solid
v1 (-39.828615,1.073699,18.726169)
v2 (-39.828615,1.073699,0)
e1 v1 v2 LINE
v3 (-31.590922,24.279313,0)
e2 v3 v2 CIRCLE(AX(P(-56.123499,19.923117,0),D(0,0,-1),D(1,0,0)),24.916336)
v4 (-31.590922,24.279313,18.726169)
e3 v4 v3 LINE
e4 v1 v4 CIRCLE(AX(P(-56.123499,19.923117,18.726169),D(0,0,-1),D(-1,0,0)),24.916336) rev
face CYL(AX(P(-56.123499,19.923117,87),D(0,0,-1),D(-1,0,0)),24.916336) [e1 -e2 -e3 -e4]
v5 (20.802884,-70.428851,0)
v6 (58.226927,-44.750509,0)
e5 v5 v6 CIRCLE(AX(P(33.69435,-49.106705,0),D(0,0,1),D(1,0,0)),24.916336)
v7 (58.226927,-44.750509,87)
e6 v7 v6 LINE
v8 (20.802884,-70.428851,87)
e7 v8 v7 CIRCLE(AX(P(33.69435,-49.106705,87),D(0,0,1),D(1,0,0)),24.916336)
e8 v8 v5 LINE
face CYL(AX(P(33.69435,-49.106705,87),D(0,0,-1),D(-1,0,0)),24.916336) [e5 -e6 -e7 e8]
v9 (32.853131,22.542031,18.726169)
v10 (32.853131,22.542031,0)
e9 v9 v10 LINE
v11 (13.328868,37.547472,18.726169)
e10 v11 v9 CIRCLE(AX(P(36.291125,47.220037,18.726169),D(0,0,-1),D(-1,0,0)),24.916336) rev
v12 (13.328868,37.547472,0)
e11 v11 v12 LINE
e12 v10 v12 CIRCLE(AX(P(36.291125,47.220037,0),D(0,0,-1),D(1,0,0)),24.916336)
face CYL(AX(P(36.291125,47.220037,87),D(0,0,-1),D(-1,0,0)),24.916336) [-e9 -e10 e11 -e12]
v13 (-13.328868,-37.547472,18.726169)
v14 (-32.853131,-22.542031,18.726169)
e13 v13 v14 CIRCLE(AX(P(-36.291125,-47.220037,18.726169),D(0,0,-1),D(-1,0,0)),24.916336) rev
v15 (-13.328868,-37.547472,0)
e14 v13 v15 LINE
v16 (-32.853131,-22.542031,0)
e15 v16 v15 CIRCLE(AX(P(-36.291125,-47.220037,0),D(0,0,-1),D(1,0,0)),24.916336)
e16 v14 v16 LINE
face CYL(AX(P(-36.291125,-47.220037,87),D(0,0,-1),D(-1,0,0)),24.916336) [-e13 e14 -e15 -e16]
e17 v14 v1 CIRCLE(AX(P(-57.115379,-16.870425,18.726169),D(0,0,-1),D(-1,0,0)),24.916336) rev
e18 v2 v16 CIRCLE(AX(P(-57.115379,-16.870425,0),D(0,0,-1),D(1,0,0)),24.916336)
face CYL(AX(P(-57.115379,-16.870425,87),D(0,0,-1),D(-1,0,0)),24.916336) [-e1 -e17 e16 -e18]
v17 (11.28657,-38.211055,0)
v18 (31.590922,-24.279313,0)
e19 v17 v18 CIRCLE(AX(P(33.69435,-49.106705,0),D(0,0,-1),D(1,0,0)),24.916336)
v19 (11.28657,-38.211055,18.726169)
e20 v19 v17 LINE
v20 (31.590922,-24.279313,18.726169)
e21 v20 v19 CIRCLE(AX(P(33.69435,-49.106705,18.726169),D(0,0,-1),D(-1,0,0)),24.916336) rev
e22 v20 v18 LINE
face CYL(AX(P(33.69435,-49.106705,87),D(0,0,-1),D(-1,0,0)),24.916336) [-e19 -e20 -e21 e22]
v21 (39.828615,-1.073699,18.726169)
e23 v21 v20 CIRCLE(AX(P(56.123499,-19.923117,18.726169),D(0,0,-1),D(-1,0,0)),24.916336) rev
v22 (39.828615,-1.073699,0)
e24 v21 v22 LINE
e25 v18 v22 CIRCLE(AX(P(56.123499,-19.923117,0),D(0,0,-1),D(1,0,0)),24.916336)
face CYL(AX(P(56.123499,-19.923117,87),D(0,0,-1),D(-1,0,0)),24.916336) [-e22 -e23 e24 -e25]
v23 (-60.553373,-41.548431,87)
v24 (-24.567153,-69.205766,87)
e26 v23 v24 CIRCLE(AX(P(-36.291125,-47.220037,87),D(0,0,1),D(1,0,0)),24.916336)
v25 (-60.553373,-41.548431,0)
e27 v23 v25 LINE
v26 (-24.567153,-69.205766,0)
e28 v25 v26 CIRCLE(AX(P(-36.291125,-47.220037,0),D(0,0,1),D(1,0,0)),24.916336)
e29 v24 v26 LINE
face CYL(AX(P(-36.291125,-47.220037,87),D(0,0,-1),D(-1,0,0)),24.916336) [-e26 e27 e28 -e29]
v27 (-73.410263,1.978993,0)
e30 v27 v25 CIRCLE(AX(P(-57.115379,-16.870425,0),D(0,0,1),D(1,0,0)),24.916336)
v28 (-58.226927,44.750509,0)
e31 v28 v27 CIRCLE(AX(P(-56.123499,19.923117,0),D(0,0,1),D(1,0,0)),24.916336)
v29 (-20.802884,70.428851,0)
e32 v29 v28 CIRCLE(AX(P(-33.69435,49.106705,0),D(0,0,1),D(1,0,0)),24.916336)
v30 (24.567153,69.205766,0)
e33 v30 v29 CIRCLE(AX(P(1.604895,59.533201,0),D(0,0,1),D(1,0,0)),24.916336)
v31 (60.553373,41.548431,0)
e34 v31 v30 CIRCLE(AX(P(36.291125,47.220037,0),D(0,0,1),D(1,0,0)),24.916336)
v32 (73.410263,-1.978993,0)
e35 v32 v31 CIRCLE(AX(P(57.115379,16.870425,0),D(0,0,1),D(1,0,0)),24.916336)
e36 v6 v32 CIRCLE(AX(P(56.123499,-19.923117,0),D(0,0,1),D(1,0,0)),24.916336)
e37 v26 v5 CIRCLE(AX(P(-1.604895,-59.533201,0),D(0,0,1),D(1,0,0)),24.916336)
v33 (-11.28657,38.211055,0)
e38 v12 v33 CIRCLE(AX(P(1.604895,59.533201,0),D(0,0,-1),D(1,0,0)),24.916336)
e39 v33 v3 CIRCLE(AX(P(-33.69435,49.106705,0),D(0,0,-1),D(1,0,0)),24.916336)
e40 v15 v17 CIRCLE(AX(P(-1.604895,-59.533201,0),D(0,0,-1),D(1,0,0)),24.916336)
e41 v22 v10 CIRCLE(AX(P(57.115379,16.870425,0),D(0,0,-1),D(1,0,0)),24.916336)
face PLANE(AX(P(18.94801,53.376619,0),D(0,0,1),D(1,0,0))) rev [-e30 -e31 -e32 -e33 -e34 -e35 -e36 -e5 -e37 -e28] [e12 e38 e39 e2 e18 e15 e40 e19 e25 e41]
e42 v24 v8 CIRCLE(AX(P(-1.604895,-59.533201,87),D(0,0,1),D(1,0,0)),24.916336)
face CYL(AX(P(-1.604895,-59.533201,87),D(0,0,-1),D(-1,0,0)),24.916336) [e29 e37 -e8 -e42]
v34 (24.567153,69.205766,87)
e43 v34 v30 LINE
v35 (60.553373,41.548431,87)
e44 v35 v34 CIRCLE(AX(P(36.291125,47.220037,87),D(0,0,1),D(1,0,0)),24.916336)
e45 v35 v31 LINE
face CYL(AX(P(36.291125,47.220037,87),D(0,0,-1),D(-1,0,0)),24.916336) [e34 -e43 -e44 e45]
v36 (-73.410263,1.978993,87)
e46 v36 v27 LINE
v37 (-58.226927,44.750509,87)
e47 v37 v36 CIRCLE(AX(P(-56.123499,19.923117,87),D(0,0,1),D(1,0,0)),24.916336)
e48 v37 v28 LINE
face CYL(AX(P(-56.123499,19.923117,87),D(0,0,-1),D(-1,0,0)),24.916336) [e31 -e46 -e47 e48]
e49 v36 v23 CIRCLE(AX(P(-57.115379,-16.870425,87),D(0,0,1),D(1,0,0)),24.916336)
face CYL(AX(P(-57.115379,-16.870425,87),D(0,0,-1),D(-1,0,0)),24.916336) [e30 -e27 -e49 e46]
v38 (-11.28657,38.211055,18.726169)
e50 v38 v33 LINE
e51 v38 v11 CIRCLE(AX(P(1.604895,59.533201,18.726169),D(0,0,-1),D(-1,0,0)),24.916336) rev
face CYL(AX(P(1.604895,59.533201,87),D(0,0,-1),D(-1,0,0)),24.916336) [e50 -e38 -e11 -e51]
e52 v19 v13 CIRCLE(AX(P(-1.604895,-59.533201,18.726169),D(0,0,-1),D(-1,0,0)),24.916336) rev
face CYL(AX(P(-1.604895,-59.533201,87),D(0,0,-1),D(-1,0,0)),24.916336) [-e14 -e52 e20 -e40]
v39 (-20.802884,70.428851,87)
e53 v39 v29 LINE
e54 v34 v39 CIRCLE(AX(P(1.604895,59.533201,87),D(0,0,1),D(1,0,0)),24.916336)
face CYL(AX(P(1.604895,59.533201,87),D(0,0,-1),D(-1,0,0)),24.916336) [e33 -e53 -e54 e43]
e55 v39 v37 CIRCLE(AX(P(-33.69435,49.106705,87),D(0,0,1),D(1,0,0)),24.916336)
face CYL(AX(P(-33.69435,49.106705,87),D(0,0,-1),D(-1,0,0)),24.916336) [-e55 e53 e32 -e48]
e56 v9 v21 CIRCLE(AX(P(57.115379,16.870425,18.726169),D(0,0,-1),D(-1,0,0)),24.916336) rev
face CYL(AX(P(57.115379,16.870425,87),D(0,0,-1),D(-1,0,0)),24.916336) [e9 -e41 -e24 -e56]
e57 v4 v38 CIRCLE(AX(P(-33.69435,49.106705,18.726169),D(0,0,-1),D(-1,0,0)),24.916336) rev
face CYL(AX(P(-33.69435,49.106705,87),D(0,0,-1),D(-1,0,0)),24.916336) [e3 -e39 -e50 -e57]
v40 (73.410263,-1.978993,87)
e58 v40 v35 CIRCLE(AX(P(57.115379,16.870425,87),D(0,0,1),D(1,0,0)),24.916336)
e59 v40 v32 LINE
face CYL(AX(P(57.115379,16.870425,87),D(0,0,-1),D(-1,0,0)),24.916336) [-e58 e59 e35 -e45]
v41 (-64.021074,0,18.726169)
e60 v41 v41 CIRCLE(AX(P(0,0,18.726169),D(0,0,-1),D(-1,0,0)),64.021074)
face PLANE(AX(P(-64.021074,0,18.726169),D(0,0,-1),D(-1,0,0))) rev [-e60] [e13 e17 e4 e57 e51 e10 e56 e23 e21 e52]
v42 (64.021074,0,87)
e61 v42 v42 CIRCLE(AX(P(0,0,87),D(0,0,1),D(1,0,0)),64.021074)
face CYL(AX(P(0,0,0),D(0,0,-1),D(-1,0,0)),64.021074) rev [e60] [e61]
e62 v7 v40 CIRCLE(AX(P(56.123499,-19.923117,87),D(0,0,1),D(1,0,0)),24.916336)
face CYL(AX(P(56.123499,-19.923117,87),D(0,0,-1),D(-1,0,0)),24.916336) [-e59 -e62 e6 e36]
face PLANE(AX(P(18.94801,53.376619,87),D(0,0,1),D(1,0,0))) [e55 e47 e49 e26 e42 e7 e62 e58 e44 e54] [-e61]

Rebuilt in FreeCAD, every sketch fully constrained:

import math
import FreeCAD as App
import Part
import Sketcher
Q = App.Units.Quantity

doc = App.newDocument("Part")
body = doc.addObject("PartDesign::Body", "Body")

# Sketch on XY plane
sketch1 = doc.addObject("Sketcher::SketchObject", "Sketch")
body.addObject(sketch1)
sketch1.AttachmentSupport = (doc.XY_Plane, [""])
sketch1.MapMode = "FlatFace"
sketch1.addGeometry([
    Part.ArcOfCircle(Part.Circle(App.Vector(-33.69435, 49.106705, 0), App.Vector(0, 0, 1), 24.916336), math.radians(58.842653), math.radians(190.068937)),  # 0
    Part.ArcOfCircle(Part.Circle(App.Vector(-56.123499, 19.923117, 0), App.Vector(0, 0, 1), 24.916336), math.radians(94.842653), math.radians(226.068937)),  # 1
    Part.ArcOfCircle(Part.Circle(App.Vector(-57.115379, -16.870425, 0), App.Vector(0, 0, 1), 24.916336), math.radians(130.842653), math.radians(262.068937)),  # 2
    Part.ArcOfCircle(Part.Circle(App.Vector(-36.291125, -47.220037, 0), App.Vector(0, 0, 1), 24.916336), math.radians(166.842653), math.radians(298.068937)),  # 3
    Part.ArcOfCircle(Part.Circle(App.Vector(-1.604895, -59.533201, 0), App.Vector(0, 0, 1), 24.916336), math.radians(-157.157347), math.radians(-25.931063)),  # 4
    Part.ArcOfCircle(Part.Circle(App.Vector(33.69435, -49.106705, 0), App.Vector(0, 0, 1), 24.916336), math.radians(-121.157347), math.radians(10.068937)),  # 5
    Part.ArcOfCircle(Part.Circle(App.Vector(56.123499, -19.923117, 0), App.Vector(0, 0, 1), 24.916336), math.radians(-85.157347), math.radians(46.068937)),  # 6
    Part.ArcOfCircle(Part.Circle(App.Vector(57.115379, 16.870425, 0), App.Vector(0, 0, 1), 24.916336), math.radians(-49.157347), math.radians(82.068937)),  # 7
    Part.ArcOfCircle(Part.Circle(App.Vector(36.291125, 47.220037, 0), App.Vector(0, 0, 1), 24.916336), math.radians(-13.157347), math.radians(118.068937)),  # 8
    Part.ArcOfCircle(Part.Circle(App.Vector(1.604895, 59.533201, 0), App.Vector(0, 0, 1), 24.916336), math.radians(22.842653), math.radians(154.068937)),  # 9
    Part.ArcOfCircle(Part.Circle(App.Vector(-33.69435, 49.106705, 0), App.Vector(0, 0, 1), 24.916336), math.radians(-85.157347), math.radians(-25.931063)),  # 10
    Part.ArcOfCircle(Part.Circle(App.Vector(1.604895, 59.533201, 0), App.Vector(0, 0, 1), 24.916336), math.radians(-121.157347), math.radians(-61.931063)),  # 11
    Part.ArcOfCircle(Part.Circle(App.Vector(36.291125, 47.220037, 0), App.Vector(0, 0, 1), 24.916336), math.radians(-157.157347), math.radians(-97.931063)),  # 12
    Part.ArcOfCircle(Part.Circle(App.Vector(57.115379, 16.870425, 0), App.Vector(0, 0, 1), 24.916336), math.radians(166.842653), math.radians(226.068937)),  # 13
    Part.ArcOfCircle(Part.Circle(App.Vector(56.123499, -19.923117, 0), App.Vector(0, 0, 1), 24.916336), math.radians(130.842653), math.radians(190.068937)),  # 14
    Part.ArcOfCircle(Part.Circle(App.Vector(33.69435, -49.106705, 0), App.Vector(0, 0, 1), 24.916336), math.radians(94.842653), math.radians(154.068937)),  # 15
    Part.ArcOfCircle(Part.Circle(App.Vector(-1.604895, -59.533201, 0), App.Vector(0, 0, 1), 24.916336), math.radians(58.842653), math.radians(118.068937)),  # 16
    Part.ArcOfCircle(Part.Circle(App.Vector(-36.291125, -47.220037, 0), App.Vector(0, 0, 1), 24.916336), math.radians(22.842653), math.radians(82.068937)),  # 17
    Part.ArcOfCircle(Part.Circle(App.Vector(-57.115379, -16.870425, 0), App.Vector(0, 0, 1), 24.916336), math.radians(-13.157347), math.radians(46.068937)),  # 18
    Part.ArcOfCircle(Part.Circle(App.Vector(-56.123499, 19.923117, 0), App.Vector(0, 0, 1), 24.916336), math.radians(-49.157347), math.radians(10.068937)),  # 19
], False)
sketch1.addConstraint([
    Sketcher.Constraint("Coincident", 0, 2, 1, 1),
    Sketcher.Constraint("Coincident", 1, 2, 2, 1),
    Sketcher.Constraint("Coincident", 2, 2, 3, 1),
    Sketcher.Constraint("Coincident", 3, 2, 4, 1),
    Sketcher.Constraint("Coincident", 4, 2, 5, 1),
    Sketcher.Constraint("Coincident", 5, 2, 6, 1),
    Sketcher.Constraint("Coincident", 6, 2, 7, 1),
    Sketcher.Constraint("Coincident", 7, 2, 8, 1),
    Sketcher.Constraint("Coincident", 8, 2, 9, 1),
    Sketcher.Constraint("Coincident", 9, 2, 0, 1),
    Sketcher.Constraint("Coincident", 10, 2, 11, 1),
    Sketcher.Constraint("Coincident", 11, 2, 12, 1),
    Sketcher.Constraint("Coincident", 12, 2, 13, 1),
    Sketcher.Constraint("Coincident", 13, 2, 14, 1),
    Sketcher.Constraint("Coincident", 14, 2, 15, 1),
    Sketcher.Constraint("Coincident", 15, 2, 16, 1),
    Sketcher.Constraint("Coincident", 16, 2, 17, 1),
    Sketcher.Constraint("Coincident", 17, 2, 18, 1),
    Sketcher.Constraint("Coincident", 18, 2, 19, 1),
    Sketcher.Constraint("Coincident", 19, 2, 10, 1),
    Sketcher.Constraint("Coincident", 10, 3, 0, 3),
    Sketcher.Constraint("Coincident", 11, 3, 9, 3),
    Sketcher.Constraint("Coincident", 12, 3, 8, 3),
    Sketcher.Constraint("Coincident", 13, 3, 7, 3),
    Sketcher.Constraint("Coincident", 14, 3, 6, 3),
    Sketcher.Constraint("Coincident", 15, 3, 5, 3),
    Sketcher.Constraint("Coincident", 16, 3, 4, 3),
    Sketcher.Constraint("Coincident", 17, 3, 3, 3),
    Sketcher.Constraint("Coincident", 18, 3, 2, 3),
    Sketcher.Constraint("Coincident", 19, 3, 1, 3),
    Sketcher.Constraint("Equal", 0, 1),
    Sketcher.Constraint("Equal", 1, 2),
    Sketcher.Constraint("Equal", 2, 3),
    Sketcher.Constraint("Equal", 3, 4),
    Sketcher.Constraint("Equal", 4, 5),
    Sketcher.Constraint("Equal", 5, 6),
    Sketcher.Constraint("Equal", 6, 7),
    Sketcher.Constraint("Equal", 7, 8),
    Sketcher.Constraint("Equal", 8, 9),
    Sketcher.Constraint("Equal", 9, 10),
    Sketcher.Constraint("Equal", 10, 11),
    Sketcher.Constraint("Equal", 11, 12),
    Sketcher.Constraint("Equal", 12, 13),
    Sketcher.Constraint("Equal", 13, 14),
    Sketcher.Constraint("Equal", 14, 15),
    Sketcher.Constraint("Equal", 15, 16),
    Sketcher.Constraint("Equal", 16, 17),
    Sketcher.Constraint("Equal", 17, 18),
    Sketcher.Constraint("Equal", 18, 19),
    Sketcher.Constraint("Symmetric", 0, 3, 5, 3, -1, 1),
    Sketcher.Constraint("Symmetric", 1, 3, 6, 3, -1, 1),
    Sketcher.Constraint("Symmetric", 2, 3, 7, 3, -1, 1),
    Sketcher.Constraint("Symmetric", 3, 3, 8, 3, -1, 1),
    Sketcher.Constraint("Symmetric", 4, 3, 9, 3, -1, 1),
    Sketcher.Constraint("Radius", 0, Q("24.916336 mm")),
    Sketcher.Constraint("DistanceX", 1, 3, -1, 1, Q("56.123499 mm")),
    Sketcher.Constraint("DistanceY", 4, 3, -1, 1, Q("59.533201 mm")),
    Sketcher.Constraint("DistanceY", 13, 2, -1, 1, Q("1.073699 mm")),
    Sketcher.Constraint("DistanceX", 0, 3, 5, 3, Q("67.3887 mm")),
    Sketcher.Constraint("DistanceX", 2, 3, -1, 1, Q("57.115379 mm")),
    Sketcher.Constraint("DistanceY", -1, 1, 0, 2, Q("44.750509 mm")),
    Sketcher.Constraint("DistanceY", 2, 2, -1, 1, Q("41.548431 mm")),
    Sketcher.Constraint("DistanceY", 4, 2, -1, 1, Q("70.428851 mm")),
    Sketcher.Constraint("DistanceX", -1, 1, 12, 2, Q("32.853131 mm")),
    Sketcher.Constraint("DistanceX", -1, 1, 14, 2, Q("31.590922 mm")),
])
pad1 = doc.addObject("PartDesign::Pad", "Pad")
body.addObject(pad1)
pad1.Profile = sketch1
pad1.Length = 87

# Sketch on XZ plane
sketch2 = doc.addObject("Sketcher::SketchObject", "Sketch001")
body.addObject(sketch2)
sketch2.AttachmentSupport = (doc.XZ_Plane, [""])
sketch2.MapMode = "FlatFace"
sketch2.addGeometry([
    Part.LineSegment(App.Vector(-64.021074, 18.726169, 0), App.Vector(-64.021074, 99.650497, 0)),
    Part.LineSegment(App.Vector(-64.021074, 99.650497, 0), App.Vector(-33.912153, 99.650497, 0)),
    Part.LineSegment(App.Vector(-33.912153, 99.650497, 0), App.Vector(-33.912153, 18.726169, 0)),
    Part.LineSegment(App.Vector(-33.912153, 18.726169, 0), App.Vector(-64.021074, 18.726169, 0)),
], False)
sketch2.addConstraint([
    Sketcher.Constraint("Coincident", 0, 2, 1, 1),
    Sketcher.Constraint("Coincident", 1, 2, 2, 1),
    Sketcher.Constraint("Coincident", 2, 2, 3, 1),
    Sketcher.Constraint("Coincident", 3, 2, 0, 1),
    Sketcher.Constraint("Vertical", 0),
    Sketcher.Constraint("Horizontal", 1),
    Sketcher.Constraint("Vertical", 2),
    Sketcher.Constraint("Horizontal", 3),
    Sketcher.Constraint("DistanceX", 1, 1, 1, 2, Q("30.108921 mm")),
    Sketcher.Constraint("DistanceY", 0, 1, 0, 2, Q("80.924328 mm")),
    Sketcher.Constraint("DistanceY", -1, 1, 2, 2, Q("18.726169 mm")),
    Sketcher.Constraint("DistanceX", 0, 2, -1, 1, Q("64.021074 mm")),
])
groove = doc.addObject("PartDesign::Groove", "Groove")
body.addObject(groove)
groove.Profile = sketch2
groove.ReferenceAxis = (sketch2, ["V_Axis"])
groove.Angle = 360

doc.recompute()
